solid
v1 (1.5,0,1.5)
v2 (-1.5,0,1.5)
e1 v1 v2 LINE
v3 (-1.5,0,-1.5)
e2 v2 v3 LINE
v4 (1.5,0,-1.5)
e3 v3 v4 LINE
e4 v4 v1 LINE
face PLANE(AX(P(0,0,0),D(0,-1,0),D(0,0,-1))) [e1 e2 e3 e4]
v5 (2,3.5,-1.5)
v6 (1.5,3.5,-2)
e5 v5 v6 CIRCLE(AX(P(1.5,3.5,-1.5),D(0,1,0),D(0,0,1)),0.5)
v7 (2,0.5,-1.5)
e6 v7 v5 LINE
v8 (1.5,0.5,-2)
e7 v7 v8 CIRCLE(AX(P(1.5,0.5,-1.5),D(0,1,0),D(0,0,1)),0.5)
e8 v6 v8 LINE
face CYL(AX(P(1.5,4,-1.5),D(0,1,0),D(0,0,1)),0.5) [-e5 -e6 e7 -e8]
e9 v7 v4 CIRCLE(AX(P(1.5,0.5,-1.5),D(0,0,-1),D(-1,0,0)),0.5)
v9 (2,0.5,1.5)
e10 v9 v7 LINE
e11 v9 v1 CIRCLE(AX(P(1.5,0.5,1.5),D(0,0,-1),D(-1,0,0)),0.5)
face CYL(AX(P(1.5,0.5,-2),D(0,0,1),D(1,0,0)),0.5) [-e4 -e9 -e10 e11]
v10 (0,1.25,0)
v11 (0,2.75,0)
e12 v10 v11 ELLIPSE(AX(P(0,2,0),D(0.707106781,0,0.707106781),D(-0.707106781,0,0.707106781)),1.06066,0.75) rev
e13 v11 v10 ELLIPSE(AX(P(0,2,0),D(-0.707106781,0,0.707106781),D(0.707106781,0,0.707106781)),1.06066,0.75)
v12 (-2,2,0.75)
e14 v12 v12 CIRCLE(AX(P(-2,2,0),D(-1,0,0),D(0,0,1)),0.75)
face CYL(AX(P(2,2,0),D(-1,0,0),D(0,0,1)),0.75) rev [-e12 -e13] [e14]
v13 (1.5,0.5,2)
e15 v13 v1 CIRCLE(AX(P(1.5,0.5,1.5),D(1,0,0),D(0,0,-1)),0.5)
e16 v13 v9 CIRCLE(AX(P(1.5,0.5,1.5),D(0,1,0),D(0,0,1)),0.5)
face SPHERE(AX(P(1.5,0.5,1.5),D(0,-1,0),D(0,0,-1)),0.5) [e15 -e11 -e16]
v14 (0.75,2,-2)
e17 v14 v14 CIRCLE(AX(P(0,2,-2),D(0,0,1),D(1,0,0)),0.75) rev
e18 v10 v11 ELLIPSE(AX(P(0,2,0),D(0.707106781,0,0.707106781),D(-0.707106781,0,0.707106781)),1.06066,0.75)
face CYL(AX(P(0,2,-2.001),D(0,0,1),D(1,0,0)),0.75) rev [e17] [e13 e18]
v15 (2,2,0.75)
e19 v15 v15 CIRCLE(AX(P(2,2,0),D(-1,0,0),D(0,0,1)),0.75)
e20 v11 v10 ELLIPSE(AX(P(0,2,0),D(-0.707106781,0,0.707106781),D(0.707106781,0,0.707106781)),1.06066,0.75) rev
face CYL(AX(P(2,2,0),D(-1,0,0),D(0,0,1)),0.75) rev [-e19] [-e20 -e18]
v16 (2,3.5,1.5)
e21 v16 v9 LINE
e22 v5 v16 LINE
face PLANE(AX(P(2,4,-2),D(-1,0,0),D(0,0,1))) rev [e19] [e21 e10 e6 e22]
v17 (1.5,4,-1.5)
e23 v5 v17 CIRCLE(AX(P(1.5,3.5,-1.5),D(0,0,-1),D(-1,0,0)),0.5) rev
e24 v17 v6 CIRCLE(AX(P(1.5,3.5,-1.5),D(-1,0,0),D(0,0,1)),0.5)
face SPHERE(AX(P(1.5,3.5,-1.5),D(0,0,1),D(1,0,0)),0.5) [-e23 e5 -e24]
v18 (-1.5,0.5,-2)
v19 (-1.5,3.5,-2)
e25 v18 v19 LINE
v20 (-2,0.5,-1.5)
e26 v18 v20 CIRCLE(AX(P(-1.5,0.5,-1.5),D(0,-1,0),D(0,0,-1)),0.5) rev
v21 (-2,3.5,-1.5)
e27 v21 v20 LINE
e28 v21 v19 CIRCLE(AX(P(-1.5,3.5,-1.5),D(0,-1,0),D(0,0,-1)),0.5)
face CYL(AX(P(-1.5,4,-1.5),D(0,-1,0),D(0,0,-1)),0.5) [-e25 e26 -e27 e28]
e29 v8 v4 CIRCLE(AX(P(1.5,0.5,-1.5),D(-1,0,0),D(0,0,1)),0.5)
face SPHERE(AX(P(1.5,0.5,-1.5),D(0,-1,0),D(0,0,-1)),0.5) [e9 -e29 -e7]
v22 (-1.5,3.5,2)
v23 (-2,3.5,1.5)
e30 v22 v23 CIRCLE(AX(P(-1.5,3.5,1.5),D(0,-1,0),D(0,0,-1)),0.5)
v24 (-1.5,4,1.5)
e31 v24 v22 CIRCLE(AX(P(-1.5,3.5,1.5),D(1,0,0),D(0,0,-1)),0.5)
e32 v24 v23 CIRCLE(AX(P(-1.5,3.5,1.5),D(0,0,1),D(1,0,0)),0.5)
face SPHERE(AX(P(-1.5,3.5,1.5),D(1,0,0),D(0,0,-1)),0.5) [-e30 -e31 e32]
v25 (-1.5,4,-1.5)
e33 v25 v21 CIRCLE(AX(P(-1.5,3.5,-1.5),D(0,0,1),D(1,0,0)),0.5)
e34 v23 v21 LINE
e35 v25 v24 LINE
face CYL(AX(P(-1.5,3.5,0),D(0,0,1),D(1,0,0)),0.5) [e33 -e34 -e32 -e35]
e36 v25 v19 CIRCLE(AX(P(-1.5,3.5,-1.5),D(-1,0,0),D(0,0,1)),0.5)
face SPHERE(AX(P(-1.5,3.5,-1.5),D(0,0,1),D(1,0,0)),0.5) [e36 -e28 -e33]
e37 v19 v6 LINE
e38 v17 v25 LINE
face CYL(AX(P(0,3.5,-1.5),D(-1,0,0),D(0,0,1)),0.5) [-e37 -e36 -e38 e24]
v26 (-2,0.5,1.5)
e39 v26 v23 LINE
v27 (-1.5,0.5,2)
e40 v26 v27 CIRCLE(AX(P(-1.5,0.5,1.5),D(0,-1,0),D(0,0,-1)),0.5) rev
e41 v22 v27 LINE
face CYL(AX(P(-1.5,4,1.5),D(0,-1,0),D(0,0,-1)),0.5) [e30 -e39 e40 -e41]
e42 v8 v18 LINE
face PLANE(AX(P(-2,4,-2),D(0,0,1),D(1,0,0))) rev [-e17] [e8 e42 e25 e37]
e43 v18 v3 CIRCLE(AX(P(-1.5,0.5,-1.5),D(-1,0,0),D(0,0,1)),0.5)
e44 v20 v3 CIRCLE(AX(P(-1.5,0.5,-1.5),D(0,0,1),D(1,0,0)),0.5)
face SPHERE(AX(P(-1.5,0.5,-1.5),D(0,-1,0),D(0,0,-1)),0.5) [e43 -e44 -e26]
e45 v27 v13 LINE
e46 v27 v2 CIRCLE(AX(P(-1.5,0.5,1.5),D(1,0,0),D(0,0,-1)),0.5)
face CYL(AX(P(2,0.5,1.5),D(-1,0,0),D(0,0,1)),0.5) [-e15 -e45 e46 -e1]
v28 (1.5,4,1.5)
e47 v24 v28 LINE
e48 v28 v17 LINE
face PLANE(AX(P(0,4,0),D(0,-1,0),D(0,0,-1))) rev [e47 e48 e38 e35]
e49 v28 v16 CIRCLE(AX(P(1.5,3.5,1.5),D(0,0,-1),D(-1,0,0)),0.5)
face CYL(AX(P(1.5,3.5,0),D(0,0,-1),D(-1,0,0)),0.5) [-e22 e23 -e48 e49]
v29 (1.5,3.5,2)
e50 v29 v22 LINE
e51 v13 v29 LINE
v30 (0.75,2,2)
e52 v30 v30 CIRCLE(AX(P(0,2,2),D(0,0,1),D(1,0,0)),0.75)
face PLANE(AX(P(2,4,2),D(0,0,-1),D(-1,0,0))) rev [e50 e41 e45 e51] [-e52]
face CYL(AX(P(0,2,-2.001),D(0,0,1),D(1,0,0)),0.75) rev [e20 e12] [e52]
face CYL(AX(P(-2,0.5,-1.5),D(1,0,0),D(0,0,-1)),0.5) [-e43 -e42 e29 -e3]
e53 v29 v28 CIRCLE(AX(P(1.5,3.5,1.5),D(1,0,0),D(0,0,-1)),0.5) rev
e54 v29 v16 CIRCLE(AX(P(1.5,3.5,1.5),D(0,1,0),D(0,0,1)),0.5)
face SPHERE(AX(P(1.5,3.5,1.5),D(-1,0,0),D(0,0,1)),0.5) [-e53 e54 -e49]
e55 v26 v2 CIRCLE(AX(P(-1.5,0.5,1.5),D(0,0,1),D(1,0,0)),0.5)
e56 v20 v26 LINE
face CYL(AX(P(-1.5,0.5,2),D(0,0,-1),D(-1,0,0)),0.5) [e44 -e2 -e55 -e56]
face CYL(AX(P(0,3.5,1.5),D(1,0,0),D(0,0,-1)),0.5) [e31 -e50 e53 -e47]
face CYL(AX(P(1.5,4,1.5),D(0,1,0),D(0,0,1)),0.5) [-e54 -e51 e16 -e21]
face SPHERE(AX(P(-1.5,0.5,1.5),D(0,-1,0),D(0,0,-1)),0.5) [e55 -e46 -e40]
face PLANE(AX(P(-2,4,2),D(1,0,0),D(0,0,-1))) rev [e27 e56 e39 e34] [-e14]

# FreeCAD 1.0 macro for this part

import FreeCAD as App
import Part
import Sketcher


def edges_at(feature, points):
    """Names of the edges that pass closest to the given points."""
    edges = feature.Shape.Edges
    near = lambda p: min(range(len(edges)), key=lambda i: edges[i].distToShape(Part.Vertex(*p))[0])
    return sorted({f"Edge{near(p) + 1}" for p in points})

doc = App.newDocument("Part")
body = doc.addObject("PartDesign::Body", "Body")

sketch1 = body.newObject("Sketcher::SketchObject", "Sketch")
sketch1.AttachmentSupport = (doc.getObject("XZ_Plane"), [""])
sketch1.MapMode = "FlatFace"
sketch1.addGeometry(Part.LineSegment(App.Vector(-2, -2, 0), App.Vector(-2, 2, 0)), False)
sketch1.addGeometry(Part.LineSegment(App.Vector(-2, 2, 0), App.Vector(2, 2, 0)), False)
sketch1.addGeometry(Part.LineSegment(App.Vector(2, 2, 0), App.Vector(2, -2, 0)), False)
sketch1.addGeometry(Part.LineSegment(App.Vector(2, -2, 0), App.Vector(-2, -2, 0)), False)
sketch1.addConstraint(Sketcher.Constraint("Coincident", 0, 2, 1, 1))
sketch1.addConstraint(Sketcher.Constraint("Coincident", 1, 2, 2, 1))
sketch1.addConstraint(Sketcher.Constraint("Coincident", 2, 2, 3, 1))
sketch1.addConstraint(Sketcher.Constraint("Coincident", 3, 2, 0, 1))
sketch1.addConstraint(Sketcher.Constraint("Vertical", 0))
sketch1.addConstraint(Sketcher.Constraint("Horizontal", 1))
sketch1.addConstraint(Sketcher.Constraint("Vertical", 2))
sketch1.addConstraint(Sketcher.Constraint("Horizontal", 3))
sketch1.addConstraint(Sketcher.Constraint("Symmetric", 0, 2, 2, 2, -1, 1))
sketch1.addConstraint(Sketcher.Constraint("Equal", 3, 0))
sketch1.addConstraint(Sketcher.Constraint("DistanceX", 1, 1, 1, 2, 4.0))
pad1 = body.newObject("PartDesign::Pad", "Pad")
pad1.Profile = sketch1
pad1.Length = 4
pad1.Reversed = True
doc.recompute()

fillet = body.newObject("PartDesign::Fillet", "Fillet")
fillet.Base = (pad1, edges_at(pad1, [(0, 4, 2)]))
fillet.Radius = 0.5
doc.recompute()

fillet2 = body.newObject("PartDesign::Fillet", "Fillet001")
fillet2.Base = (fillet, edges_at(fillet, [(2, 4, -0.25), (2, 1.75, 2), (2, 3.854, 1.854)]))
fillet2.Radius = 0.5
doc.recompute()

fillet3 = body.newObject("PartDesign::Fillet", "Fillet002")
fillet3.Base = (fillet2, edges_at(fillet2, [(-2, 4, -0.25), (-2, 1.75, 2), (-2, 3.854, 1.854)]))
fillet3.Radius = 0.5
doc.recompute()

fillet4 = body.newObject("PartDesign::Fillet", "Fillet003")
fillet4.Base = (fillet3, edges_at(fillet3, [
    (2, 1.75, -2),
    (0, 4, -2),
    (1.854, 3.854, -2),
    (-2, 1.75, -2),
    (-1.854, 3.854, -2),
]))
fillet4.Radius = 0.5
doc.recompute()

fillet5 = body.newObject("PartDesign::Fillet", "Fillet004")
fillet5.Base = (fillet4, edges_at(fillet4, [
    (2, 0, 0),
    (1.854, 0, 1.854),
    (0, 0, 2),
    (-1.854, 0, 1.854),
    (0, 0, -2),
    (-2, 0, 0),
    (-1.854, 0, -1.854),
    (1.854, 0, -1.854),
]))
fillet5.Radius = 0.5

sketch2 = body.newObject("Sketcher::SketchObject", "Sketch001")
sketch2.AttachmentSupport = (doc.getObject("XY_Plane"), [""])
sketch2.MapMode = "FlatFace"
sketch2.AttachmentOffset = App.Placement(App.Vector(0, 0, 2), App.Rotation())
sketch2.addGeometry(Part.Circle(App.Vector(0, 2, 0), App.Vector(0, 0, 1), 0.75), False)
sketch2.addConstraint(Sketcher.Constraint("PointOnObject", 0, 3, -2))
sketch2.addConstraint(Sketcher.Constraint("Diameter", 0, 1.5))
sketch2.addConstraint(Sketcher.Constraint("DistanceY", -1, 1, 0, 3, 2.0))
pocket1 = body.newObject("PartDesign::Pocket", "Pocket")
pocket1.Profile = sketch2
pocket1.Type = "UpToFirst"

sketch3 = body.newObject("Sketcher::SketchObject", "Sketch002")
sketch3.AttachmentSupport = (doc.getObject("YZ_Plane"), [""])
sketch3.MapMode = "FlatFace"
sketch3.AttachmentOffset = App.Placement(App.Vector(0, 0, -2), App.Rotation())
sketch3.addGeometry(Part.Circle(App.Vector(2, 0, 0), App.Vector(0, 0, 1), 0.75), False)
sketch3.addConstraint(Sketcher.Constraint("PointOnObject", 0, 3, -1))
sketch3.addConstraint(Sketcher.Constraint("Diameter", 0, 1.5))
sketch3.addConstraint(Sketcher.Constraint("DistanceX", -1, 1, 0, 3, 2.0))
pocket2 = body.newObject("PartDesign::Pocket", "Pocket001")
pocket2.Profile = sketch3
pocket2.Length = 4
pocket2.Reversed = True

doc.recompute()
